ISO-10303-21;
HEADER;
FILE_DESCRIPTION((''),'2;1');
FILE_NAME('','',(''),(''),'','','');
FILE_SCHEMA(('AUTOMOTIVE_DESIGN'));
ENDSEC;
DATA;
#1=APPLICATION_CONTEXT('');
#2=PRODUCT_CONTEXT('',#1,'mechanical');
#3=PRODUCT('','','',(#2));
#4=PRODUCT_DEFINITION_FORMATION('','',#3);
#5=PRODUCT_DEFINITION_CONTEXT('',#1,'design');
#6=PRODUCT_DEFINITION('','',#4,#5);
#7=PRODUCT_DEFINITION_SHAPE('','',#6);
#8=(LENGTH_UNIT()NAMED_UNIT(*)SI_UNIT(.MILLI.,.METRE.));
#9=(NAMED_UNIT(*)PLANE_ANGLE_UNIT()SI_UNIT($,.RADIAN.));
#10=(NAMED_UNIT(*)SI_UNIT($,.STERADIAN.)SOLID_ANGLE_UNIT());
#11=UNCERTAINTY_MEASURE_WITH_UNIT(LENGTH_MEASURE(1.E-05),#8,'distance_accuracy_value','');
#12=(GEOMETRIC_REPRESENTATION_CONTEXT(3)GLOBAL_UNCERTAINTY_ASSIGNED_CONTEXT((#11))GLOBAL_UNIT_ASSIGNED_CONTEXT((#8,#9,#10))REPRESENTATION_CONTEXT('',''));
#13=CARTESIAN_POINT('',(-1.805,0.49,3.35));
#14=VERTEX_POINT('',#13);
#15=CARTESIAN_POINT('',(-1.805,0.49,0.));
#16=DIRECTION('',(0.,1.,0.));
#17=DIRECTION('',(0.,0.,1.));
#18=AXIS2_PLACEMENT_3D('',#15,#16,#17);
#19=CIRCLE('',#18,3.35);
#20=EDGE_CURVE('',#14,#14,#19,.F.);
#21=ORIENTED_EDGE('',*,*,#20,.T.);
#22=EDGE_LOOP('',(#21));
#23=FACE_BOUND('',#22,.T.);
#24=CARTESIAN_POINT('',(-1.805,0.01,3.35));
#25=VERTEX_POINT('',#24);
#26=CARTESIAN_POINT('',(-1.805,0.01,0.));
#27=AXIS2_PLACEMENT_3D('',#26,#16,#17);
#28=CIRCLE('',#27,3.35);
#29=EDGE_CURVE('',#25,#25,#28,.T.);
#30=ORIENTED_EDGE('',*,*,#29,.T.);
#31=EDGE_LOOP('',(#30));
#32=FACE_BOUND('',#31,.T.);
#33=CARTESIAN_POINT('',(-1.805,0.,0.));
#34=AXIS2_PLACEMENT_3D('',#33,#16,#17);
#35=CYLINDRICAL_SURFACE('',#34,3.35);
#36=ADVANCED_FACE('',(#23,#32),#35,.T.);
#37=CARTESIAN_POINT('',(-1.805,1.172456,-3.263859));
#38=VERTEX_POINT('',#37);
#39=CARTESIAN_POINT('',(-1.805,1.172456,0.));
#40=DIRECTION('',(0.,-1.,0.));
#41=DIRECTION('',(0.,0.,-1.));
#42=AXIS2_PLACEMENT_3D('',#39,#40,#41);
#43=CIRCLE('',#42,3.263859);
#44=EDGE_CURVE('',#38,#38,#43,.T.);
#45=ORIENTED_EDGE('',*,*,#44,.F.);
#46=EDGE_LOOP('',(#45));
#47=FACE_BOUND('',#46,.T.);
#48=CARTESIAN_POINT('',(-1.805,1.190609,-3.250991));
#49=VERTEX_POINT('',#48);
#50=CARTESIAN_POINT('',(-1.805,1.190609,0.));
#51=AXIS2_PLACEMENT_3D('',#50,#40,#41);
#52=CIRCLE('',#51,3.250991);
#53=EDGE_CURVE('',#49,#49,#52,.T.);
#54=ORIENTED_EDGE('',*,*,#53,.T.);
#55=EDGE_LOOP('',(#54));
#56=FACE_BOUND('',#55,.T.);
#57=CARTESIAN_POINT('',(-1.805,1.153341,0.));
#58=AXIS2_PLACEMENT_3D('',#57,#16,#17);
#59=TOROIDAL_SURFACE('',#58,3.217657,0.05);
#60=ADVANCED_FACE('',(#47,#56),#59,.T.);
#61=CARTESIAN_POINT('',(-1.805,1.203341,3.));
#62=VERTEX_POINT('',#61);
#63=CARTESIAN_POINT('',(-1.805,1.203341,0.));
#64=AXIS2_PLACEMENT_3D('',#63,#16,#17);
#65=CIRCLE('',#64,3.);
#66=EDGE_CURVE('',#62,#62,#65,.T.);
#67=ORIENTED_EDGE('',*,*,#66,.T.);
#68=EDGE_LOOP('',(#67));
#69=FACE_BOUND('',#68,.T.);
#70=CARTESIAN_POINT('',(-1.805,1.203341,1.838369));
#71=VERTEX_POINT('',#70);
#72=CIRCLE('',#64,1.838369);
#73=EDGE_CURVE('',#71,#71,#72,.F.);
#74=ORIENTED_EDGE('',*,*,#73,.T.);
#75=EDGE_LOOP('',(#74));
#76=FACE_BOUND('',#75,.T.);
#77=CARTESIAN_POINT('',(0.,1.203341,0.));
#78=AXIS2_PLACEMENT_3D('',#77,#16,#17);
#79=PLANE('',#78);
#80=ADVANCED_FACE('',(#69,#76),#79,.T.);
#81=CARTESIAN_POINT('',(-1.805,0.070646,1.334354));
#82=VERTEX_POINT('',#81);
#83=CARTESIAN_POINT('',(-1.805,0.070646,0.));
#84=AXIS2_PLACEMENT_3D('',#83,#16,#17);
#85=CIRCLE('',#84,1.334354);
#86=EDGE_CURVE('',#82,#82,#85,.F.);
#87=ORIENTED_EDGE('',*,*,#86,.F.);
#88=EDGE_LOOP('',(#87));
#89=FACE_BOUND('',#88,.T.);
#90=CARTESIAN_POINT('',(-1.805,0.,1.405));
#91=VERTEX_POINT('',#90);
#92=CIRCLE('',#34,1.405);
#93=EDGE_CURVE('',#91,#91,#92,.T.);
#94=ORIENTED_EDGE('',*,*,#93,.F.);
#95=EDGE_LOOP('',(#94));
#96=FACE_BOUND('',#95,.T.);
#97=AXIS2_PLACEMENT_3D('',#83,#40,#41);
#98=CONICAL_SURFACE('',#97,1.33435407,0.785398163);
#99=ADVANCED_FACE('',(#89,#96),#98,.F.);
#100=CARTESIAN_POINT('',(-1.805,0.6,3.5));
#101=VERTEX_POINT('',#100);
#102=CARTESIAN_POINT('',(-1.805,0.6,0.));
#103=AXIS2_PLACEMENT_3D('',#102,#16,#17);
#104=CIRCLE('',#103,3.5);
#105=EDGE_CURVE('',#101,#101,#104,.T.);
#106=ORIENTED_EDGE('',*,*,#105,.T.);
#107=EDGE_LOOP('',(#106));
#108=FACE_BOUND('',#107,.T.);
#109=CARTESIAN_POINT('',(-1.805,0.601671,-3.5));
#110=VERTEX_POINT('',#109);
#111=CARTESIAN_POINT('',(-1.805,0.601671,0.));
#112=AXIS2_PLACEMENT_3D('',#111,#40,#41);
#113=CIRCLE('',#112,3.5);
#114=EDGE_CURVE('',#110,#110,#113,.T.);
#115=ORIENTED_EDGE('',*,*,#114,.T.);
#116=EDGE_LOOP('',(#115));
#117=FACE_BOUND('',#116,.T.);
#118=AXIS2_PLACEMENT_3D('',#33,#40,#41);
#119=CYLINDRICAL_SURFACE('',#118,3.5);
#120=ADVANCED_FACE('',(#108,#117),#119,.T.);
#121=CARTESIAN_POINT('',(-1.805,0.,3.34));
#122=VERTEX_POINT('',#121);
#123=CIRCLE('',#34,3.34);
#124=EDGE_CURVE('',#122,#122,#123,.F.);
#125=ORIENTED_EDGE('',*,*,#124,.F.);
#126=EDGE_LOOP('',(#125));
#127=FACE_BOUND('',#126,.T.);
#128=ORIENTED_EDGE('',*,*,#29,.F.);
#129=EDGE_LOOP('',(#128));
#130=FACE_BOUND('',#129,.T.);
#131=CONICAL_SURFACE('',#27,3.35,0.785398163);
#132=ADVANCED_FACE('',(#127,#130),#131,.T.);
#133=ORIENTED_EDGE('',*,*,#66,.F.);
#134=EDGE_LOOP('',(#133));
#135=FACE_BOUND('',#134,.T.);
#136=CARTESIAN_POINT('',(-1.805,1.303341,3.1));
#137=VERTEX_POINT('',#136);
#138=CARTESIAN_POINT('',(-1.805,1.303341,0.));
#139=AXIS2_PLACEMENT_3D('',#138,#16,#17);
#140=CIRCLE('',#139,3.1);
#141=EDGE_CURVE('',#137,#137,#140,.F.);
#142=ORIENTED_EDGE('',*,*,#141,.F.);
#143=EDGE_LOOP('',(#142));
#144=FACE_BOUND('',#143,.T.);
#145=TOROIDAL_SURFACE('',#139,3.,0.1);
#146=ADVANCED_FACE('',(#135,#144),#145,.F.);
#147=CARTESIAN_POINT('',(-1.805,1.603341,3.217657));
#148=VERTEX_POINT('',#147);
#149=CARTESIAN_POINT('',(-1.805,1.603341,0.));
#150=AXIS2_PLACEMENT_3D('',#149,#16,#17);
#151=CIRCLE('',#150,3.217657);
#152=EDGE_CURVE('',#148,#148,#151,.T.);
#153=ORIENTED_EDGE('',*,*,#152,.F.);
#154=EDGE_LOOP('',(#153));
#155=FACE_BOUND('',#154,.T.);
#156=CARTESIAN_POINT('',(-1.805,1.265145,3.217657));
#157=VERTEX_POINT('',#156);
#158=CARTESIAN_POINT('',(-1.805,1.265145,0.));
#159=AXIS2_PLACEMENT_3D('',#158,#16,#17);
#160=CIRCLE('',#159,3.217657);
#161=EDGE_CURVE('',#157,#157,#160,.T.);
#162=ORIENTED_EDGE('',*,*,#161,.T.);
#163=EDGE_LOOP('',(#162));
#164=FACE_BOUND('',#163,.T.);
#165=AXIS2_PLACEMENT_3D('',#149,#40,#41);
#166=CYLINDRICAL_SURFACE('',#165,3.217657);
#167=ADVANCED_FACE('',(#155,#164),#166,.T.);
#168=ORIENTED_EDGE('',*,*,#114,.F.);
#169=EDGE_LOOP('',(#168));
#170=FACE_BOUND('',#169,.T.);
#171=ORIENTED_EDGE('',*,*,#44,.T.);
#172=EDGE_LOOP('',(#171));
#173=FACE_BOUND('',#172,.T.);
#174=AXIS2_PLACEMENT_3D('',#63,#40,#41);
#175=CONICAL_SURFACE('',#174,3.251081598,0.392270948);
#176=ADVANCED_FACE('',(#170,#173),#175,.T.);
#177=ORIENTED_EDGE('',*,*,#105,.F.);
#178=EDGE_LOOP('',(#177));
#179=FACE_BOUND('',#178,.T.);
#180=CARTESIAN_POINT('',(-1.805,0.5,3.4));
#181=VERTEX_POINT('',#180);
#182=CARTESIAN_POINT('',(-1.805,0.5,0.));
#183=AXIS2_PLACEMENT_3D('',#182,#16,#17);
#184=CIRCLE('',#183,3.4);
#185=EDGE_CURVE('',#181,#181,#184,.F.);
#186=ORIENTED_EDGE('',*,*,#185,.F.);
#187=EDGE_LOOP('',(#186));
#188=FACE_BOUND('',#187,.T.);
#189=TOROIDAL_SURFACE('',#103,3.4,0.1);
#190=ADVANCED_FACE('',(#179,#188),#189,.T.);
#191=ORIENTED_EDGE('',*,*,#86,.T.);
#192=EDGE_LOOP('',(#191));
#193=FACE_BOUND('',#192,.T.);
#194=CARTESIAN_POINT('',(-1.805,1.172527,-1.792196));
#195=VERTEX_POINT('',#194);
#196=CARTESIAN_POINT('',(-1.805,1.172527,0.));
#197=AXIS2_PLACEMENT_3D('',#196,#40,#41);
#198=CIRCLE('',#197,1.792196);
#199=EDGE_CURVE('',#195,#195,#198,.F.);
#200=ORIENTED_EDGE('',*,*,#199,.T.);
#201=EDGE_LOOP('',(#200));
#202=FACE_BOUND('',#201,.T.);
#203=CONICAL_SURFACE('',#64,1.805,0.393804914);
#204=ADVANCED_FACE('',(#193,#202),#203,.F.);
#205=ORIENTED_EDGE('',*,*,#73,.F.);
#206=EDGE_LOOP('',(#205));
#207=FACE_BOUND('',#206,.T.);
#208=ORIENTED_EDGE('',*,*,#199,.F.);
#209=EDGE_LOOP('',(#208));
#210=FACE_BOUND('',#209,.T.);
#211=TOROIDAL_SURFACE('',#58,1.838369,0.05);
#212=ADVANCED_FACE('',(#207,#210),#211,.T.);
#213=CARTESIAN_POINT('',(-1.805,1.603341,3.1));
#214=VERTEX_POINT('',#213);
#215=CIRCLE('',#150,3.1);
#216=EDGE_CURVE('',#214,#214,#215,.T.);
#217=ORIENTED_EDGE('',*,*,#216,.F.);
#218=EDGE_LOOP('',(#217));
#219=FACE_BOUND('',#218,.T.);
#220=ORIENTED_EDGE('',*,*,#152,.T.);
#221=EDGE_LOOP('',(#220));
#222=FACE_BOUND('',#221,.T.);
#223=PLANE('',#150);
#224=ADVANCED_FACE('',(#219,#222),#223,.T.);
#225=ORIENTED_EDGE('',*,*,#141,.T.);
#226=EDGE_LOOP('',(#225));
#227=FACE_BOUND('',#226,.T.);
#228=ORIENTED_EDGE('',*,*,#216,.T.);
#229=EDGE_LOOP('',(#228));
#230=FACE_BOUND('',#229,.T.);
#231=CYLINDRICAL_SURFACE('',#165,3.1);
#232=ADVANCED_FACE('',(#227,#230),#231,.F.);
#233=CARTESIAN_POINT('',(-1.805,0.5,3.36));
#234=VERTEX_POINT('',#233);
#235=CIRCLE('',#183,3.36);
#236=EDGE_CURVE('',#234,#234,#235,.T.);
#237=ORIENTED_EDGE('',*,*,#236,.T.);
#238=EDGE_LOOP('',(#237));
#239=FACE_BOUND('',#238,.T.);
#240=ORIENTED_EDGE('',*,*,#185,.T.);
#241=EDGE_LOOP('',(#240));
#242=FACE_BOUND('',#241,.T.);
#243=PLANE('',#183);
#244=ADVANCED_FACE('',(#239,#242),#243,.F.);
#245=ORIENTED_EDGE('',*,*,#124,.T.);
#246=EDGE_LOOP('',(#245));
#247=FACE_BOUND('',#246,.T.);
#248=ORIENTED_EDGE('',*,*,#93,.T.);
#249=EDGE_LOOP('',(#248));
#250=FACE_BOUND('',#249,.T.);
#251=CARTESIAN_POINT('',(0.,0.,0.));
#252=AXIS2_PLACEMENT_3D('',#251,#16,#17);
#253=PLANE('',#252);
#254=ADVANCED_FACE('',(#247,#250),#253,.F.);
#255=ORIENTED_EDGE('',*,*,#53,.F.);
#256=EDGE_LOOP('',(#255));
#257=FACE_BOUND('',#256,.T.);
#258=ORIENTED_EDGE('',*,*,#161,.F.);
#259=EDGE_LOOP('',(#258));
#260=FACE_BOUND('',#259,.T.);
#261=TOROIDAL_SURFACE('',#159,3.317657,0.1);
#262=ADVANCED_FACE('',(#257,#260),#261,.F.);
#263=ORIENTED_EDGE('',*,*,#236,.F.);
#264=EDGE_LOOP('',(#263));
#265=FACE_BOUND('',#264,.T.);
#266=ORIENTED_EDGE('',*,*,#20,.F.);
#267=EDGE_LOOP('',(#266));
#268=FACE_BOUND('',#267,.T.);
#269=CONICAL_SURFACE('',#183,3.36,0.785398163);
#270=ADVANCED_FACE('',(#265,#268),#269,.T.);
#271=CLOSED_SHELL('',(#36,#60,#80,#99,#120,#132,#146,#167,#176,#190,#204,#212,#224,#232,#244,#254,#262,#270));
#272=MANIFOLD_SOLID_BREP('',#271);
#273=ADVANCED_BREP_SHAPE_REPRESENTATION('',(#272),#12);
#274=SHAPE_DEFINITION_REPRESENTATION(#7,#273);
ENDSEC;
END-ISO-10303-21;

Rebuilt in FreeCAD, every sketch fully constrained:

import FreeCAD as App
import Part
import Sketcher

V = App.Vector
Q = App.Units.Quantity


def edges_at(feature, points):
    """Names of the edges that pass closest to the given points."""
    edges = feature.Shape.Edges
    near = lambda p: min(range(len(edges)), key=lambda i: edges[i].distToShape(Part.Vertex(*p))[0])
    return sorted({f"Edge{near(p) + 1}" for p in points})

doc = App.newDocument("Part")
body = doc.addObject("PartDesign::Body", "Body")

# Sketch on XY plane
sketch1 = doc.addObject("Sketcher::SketchObject", "Sketch")
body.addObject(sketch1)
sketch1.AttachmentSupport = (doc.XY_Plane, [""])
sketch1.MapMode = "FlatFace"
sketch1.addGeometry(Part.LineSegment(V(-0.5, 0, 0), V(1.7, 0, 0)), False)
sketch1.addGeometry(Part.LineSegment(V(1.7, 0, 0), V(1.7, 0.6, 0)), False)
sketch1.addGeometry(Part.LineSegment(V(1.7, 0.6, 0), V(1.4, 1.2, 0)), False)
sketch1.addGeometry(Part.LineSegment(V(1.4, 1.2, 0), V(0, 1.2, 0)), False)
sketch1.addGeometry(Part.LineSegment(V(0, 1.2, 0), V(-0.5, 0, 0)), False)
sketch1.addGeometry(Part.LineSegment(V(-1.8, 0, 0), V(-1.8, 1.2, 0)), True)  # axis
sketch1.addConstraint(Sketcher.Constraint("Coincident", 0, 2, 1, 1))
sketch1.addConstraint(Sketcher.Constraint("Coincident", 1, 2, 2, 1))
sketch1.addConstraint(Sketcher.Constraint("Coincident", 2, 2, 3, 1))
sketch1.addConstraint(Sketcher.Constraint("Coincident", 3, 2, 4, 1))
sketch1.addConstraint(Sketcher.Constraint("Coincident", 4, 2, 0, 1))
sketch1.addConstraint(Sketcher.Constraint("Horizontal", 0))
sketch1.addConstraint(Sketcher.Constraint("Vertical", 1))
sketch1.addConstraint(Sketcher.Constraint("Horizontal", 3))
sketch1.addConstraint(Sketcher.Constraint("Vertical", 5))
sketch1.addConstraint(Sketcher.Constraint("PointOnObject", 0, 2, -1))
sketch1.addConstraint(Sketcher.Constraint("PointOnObject", 3, 2, -2))
sketch1.addConstraint(Sketcher.Constraint("PointOnObject", 5, 1, -1))
sketch1.addConstraint(Sketcher.Constraint("Horizontal", 3, 2, 5, 2))
sketch1.addConstraint(Sketcher.Constraint("DistanceX", 4, 2, -1, 1, Q("0.5 mm")))
sketch1.addConstraint(Sketcher.Constraint("DistanceX", 5, 1, 0, 2, Q("3.5 mm")))
sketch1.addConstraint(Sketcher.Constraint("DistanceX", 0, 1, 0, 2, Q("2.195 mm")))
sketch1.addConstraint(Sketcher.Constraint("DistanceX", 3, 2, 3, 1, Q("1.446082 mm")))
sketch1.addConstraint(Sketcher.Constraint("DistanceY", 1, 1, 1, 2, Q("0.601671 mm")))
sketch1.addConstraint(Sketcher.Constraint("DistanceY", 5, 1, 5, 2, Q("1.203341 mm")))
revolution = doc.addObject("PartDesign::Revolution", "Revolution")
body.addObject(revolution)
revolution.Profile = sketch1
revolution.ReferenceAxis = (sketch1, ["Axis0"])
revolution.Angle = 360
doc.recompute()

fillet = doc.addObject("PartDesign::Fillet", "Fillet")
body.addObject(fillet)
fillet.Base = (revolution, edges_at(revolution, [(-1.805, 1.203, 1.805), (-1.805, 1.203, 3.251)]))
fillet.Radius = 0.05

# Sketch on XZ plane
sketch2 = doc.addObject("Sketcher::SketchObject", "Sketch001")
body.addObject(sketch2)
sketch2.AttachmentSupport = (doc.XZ_Plane, [""])
sketch2.MapMode = "FlatFace"
sketch2.AttachmentOffset = App.Placement(V(0, 0, -1.203341), App.Rotation())
sketch2.addGeometry(Part.Circle(V(-1.8, 0, 0), V(0, 0, 1), 3.2), False)
sketch2.addGeometry(Part.Circle(V(-1.8, 0, 0), V(0, 0, 1), 3.1), False)
sketch2.addConstraint(Sketcher.Constraint("Coincident", 1, 3, 0, 3))
sketch2.addConstraint(Sketcher.Constraint("PointOnObject", 0, 3, -1))
sketch2.addConstraint(Sketcher.Constraint("Diameter", 1, Q("6.2 mm")))
sketch2.addConstraint(Sketcher.Constraint("Diameter", 0, Q("6.435314 mm")))
sketch2.addConstraint(Sketcher.Constraint("DistanceX", 0, 3, -1, 1, Q("1.805 mm")))
pad1 = doc.addObject("PartDesign::Pad", "Pad")
body.addObject(pad1)
pad1.Profile = sketch2
pad1.Length = 0.4
pad1.Reversed = True
doc.recompute()

fillet2 = doc.addObject("PartDesign::Fillet", "Fillet001")
body.addObject(fillet2)
fillet2.Base = (pad1, edges_at(pad1, [(-5.023, 1.203, 0), (-1.805, 1.203, -3.1)]))
fillet2.Radius = 0.1
doc.recompute()

chamfer = doc.addObject("PartDesign::Chamfer", "Chamfer")
body.addObject(chamfer)
chamfer.Base = (fillet2, edges_at(fillet2, [(-1.805, 0, 1.305)]))
chamfer.ChamferType = "Two distances"
chamfer.Size = 0.1
chamfer.Size2 = 0.076502

# Sketch on XZ plane
sketch3 = doc.addObject("Sketcher::SketchObject", "Sketch002")
body.addObject(sketch3)
sketch3.AttachmentSupport = (doc.XZ_Plane, [""])
sketch3.MapMode = "FlatFace"
sketch3.AttachmentOffset = App.Placement(V(0, 0, -0.5), App.Rotation())
sketch3.addGeometry(Part.Circle(V(-1.8, 0, 0), V(0, 0, 1), 3.5), False)
sketch3.addGeometry(Part.Circle(V(-1.8, 0, 0), V(0, 0, 1), 3.4), False)
sketch3.addConstraint(Sketcher.Constraint("Coincident", 1, 3, 0, 3))
sketch3.addConstraint(Sketcher.Constraint("PointOnObject", 0, 3, -1))
sketch3.addConstraint(Sketcher.Constraint("Diameter", 0, Q("7 mm")))
sketch3.addConstraint(Sketcher.Constraint("Diameter", 1, Q("6.7 mm")))
sketch3.addConstraint(Sketcher.Constraint("DistanceX", 0, 3, -1, 1, Q("1.805 mm")))
pocket1 = doc.addObject("PartDesign::Pocket", "Pocket")
body.addObject(pocket1)
pocket1.Profile = sketch3
pocket1.Length = 0.5
pocket1.Reversed = True
doc.recompute()

chamfer2 = doc.addObject("PartDesign::Chamfer", "Chamfer001")
body.addObject(chamfer2)
chamfer2.Base = (pocket1, edges_at(pocket1, [(-1.805, 0, -3.35), (-1.805, 0.5, -3.35)]))
chamfer2.Size = 0.01
doc.recompute()

fillet3 = doc.addObject("PartDesign::Fillet", "Fillet002")
body.addObject(fillet3)
fillet3.Base = (chamfer2, edges_at(chamfer2, [(-1.805, 0.5, 3.5)]))
fillet3.Radius = 0.1

doc.recompute()
